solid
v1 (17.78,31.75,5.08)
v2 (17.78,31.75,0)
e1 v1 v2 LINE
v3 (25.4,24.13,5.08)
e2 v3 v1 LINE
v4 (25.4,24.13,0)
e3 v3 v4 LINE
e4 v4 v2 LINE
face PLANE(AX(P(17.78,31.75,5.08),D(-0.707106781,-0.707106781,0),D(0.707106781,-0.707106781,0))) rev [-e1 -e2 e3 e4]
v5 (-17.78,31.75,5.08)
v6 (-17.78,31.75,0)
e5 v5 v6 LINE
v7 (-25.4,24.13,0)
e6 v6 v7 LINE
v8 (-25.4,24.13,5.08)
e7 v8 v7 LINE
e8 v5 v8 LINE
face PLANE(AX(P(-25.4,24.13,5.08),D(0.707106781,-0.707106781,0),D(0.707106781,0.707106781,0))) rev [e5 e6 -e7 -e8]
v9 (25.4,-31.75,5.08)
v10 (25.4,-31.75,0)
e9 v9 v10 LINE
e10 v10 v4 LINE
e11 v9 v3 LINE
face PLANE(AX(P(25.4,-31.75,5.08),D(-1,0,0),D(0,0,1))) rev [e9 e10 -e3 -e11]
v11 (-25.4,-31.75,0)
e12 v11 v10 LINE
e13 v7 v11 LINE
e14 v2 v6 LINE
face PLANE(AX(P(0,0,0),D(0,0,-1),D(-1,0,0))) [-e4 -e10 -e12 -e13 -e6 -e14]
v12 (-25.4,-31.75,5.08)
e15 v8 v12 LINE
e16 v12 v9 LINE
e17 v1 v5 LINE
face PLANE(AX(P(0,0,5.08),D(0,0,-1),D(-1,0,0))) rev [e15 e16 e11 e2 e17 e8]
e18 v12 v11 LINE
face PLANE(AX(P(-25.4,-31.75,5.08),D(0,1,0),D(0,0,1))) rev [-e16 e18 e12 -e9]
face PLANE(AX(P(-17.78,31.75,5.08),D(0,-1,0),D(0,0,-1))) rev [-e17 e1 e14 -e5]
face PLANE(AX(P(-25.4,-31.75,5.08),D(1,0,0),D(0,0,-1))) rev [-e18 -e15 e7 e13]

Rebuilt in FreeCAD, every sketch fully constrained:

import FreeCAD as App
import Part
import Sketcher
Q = App.Units.Quantity

doc = App.newDocument("Part")
body = doc.addObject("PartDesign::Body", "Body")

# Sketch on XY plane
sketch1 = body.newObject("Sketcher::SketchObject", "Sketch")
sketch1.AttachmentSupport = (doc.getObject("XY_Plane"), [""])
sketch1.MapMode = "FlatFace"
sketch1.addGeometry(Part.LineSegment(App.Vector(-18, 32, 0), App.Vector(-25, 24, 0)), False)
sketch1.addGeometry(Part.LineSegment(App.Vector(-25, 24, 0), App.Vector(-25, -32, 0)), False)
sketch1.addGeometry(Part.LineSegment(App.Vector(-25, -32, 0), App.Vector(25, -32, 0)), False)
sketch1.addGeometry(Part.LineSegment(App.Vector(25, -32, 0), App.Vector(25, 24, 0)), False)
sketch1.addGeometry(Part.LineSegment(App.Vector(25, 24, 0), App.Vector(18, 32, 0)), False)
sketch1.addGeometry(Part.LineSegment(App.Vector(18, 32, 0), App.Vector(-18, 32, 0)), False)
sketch1.addConstraint(Sketcher.Constraint("Coincident", 0, 2, 1, 1))
sketch1.addConstraint(Sketcher.Constraint("Coincident", 1, 2, 2, 1))
sketch1.addConstraint(Sketcher.Constraint("Coincident", 2, 2, 3, 1))
sketch1.addConstraint(Sketcher.Constraint("Coincident", 3, 2, 4, 1))
sketch1.addConstraint(Sketcher.Constraint("Coincident", 4, 2, 5, 1))
sketch1.addConstraint(Sketcher.Constraint("Coincident", 5, 2, 0, 1))
sketch1.addConstraint(Sketcher.Constraint("Vertical", 1))
sketch1.addConstraint(Sketcher.Constraint("Horizontal", 2))
sketch1.addConstraint(Sketcher.Constraint("Vertical", 3))
sketch1.addConstraint(Sketcher.Constraint("Horizontal", 5))
sketch1.addConstraint(Sketcher.Constraint("Symmetric", 0, 2, 3, 2, -2))
sketch1.addConstraint(Sketcher.Constraint("Perpendicular", 0, 4))
sketch1.addConstraint(Sketcher.Constraint("Equal", 0, 4))
sketch1.addConstraint(Sketcher.Constraint("DistanceX", 2, 1, 2, 2, Q("2 in")))
sketch1.addConstraint(Sketcher.Constraint("DistanceX", 5, 2, 5, 1, Q("1.4 in")))
sketch1.addConstraint(Sketcher.Constraint("DistanceY", 1, 2, 1, 1, Q("2.2 in")))
sketch1.addConstraint(Sketcher.Constraint("DistanceY", -1, 1, 0, 2, Q("0.95 in")))
pad1 = body.newObject("PartDesign::Pad", "Pad")
pad1.Profile = sketch1
pad1.Length = Q("0.2 in")

doc.recompute()
